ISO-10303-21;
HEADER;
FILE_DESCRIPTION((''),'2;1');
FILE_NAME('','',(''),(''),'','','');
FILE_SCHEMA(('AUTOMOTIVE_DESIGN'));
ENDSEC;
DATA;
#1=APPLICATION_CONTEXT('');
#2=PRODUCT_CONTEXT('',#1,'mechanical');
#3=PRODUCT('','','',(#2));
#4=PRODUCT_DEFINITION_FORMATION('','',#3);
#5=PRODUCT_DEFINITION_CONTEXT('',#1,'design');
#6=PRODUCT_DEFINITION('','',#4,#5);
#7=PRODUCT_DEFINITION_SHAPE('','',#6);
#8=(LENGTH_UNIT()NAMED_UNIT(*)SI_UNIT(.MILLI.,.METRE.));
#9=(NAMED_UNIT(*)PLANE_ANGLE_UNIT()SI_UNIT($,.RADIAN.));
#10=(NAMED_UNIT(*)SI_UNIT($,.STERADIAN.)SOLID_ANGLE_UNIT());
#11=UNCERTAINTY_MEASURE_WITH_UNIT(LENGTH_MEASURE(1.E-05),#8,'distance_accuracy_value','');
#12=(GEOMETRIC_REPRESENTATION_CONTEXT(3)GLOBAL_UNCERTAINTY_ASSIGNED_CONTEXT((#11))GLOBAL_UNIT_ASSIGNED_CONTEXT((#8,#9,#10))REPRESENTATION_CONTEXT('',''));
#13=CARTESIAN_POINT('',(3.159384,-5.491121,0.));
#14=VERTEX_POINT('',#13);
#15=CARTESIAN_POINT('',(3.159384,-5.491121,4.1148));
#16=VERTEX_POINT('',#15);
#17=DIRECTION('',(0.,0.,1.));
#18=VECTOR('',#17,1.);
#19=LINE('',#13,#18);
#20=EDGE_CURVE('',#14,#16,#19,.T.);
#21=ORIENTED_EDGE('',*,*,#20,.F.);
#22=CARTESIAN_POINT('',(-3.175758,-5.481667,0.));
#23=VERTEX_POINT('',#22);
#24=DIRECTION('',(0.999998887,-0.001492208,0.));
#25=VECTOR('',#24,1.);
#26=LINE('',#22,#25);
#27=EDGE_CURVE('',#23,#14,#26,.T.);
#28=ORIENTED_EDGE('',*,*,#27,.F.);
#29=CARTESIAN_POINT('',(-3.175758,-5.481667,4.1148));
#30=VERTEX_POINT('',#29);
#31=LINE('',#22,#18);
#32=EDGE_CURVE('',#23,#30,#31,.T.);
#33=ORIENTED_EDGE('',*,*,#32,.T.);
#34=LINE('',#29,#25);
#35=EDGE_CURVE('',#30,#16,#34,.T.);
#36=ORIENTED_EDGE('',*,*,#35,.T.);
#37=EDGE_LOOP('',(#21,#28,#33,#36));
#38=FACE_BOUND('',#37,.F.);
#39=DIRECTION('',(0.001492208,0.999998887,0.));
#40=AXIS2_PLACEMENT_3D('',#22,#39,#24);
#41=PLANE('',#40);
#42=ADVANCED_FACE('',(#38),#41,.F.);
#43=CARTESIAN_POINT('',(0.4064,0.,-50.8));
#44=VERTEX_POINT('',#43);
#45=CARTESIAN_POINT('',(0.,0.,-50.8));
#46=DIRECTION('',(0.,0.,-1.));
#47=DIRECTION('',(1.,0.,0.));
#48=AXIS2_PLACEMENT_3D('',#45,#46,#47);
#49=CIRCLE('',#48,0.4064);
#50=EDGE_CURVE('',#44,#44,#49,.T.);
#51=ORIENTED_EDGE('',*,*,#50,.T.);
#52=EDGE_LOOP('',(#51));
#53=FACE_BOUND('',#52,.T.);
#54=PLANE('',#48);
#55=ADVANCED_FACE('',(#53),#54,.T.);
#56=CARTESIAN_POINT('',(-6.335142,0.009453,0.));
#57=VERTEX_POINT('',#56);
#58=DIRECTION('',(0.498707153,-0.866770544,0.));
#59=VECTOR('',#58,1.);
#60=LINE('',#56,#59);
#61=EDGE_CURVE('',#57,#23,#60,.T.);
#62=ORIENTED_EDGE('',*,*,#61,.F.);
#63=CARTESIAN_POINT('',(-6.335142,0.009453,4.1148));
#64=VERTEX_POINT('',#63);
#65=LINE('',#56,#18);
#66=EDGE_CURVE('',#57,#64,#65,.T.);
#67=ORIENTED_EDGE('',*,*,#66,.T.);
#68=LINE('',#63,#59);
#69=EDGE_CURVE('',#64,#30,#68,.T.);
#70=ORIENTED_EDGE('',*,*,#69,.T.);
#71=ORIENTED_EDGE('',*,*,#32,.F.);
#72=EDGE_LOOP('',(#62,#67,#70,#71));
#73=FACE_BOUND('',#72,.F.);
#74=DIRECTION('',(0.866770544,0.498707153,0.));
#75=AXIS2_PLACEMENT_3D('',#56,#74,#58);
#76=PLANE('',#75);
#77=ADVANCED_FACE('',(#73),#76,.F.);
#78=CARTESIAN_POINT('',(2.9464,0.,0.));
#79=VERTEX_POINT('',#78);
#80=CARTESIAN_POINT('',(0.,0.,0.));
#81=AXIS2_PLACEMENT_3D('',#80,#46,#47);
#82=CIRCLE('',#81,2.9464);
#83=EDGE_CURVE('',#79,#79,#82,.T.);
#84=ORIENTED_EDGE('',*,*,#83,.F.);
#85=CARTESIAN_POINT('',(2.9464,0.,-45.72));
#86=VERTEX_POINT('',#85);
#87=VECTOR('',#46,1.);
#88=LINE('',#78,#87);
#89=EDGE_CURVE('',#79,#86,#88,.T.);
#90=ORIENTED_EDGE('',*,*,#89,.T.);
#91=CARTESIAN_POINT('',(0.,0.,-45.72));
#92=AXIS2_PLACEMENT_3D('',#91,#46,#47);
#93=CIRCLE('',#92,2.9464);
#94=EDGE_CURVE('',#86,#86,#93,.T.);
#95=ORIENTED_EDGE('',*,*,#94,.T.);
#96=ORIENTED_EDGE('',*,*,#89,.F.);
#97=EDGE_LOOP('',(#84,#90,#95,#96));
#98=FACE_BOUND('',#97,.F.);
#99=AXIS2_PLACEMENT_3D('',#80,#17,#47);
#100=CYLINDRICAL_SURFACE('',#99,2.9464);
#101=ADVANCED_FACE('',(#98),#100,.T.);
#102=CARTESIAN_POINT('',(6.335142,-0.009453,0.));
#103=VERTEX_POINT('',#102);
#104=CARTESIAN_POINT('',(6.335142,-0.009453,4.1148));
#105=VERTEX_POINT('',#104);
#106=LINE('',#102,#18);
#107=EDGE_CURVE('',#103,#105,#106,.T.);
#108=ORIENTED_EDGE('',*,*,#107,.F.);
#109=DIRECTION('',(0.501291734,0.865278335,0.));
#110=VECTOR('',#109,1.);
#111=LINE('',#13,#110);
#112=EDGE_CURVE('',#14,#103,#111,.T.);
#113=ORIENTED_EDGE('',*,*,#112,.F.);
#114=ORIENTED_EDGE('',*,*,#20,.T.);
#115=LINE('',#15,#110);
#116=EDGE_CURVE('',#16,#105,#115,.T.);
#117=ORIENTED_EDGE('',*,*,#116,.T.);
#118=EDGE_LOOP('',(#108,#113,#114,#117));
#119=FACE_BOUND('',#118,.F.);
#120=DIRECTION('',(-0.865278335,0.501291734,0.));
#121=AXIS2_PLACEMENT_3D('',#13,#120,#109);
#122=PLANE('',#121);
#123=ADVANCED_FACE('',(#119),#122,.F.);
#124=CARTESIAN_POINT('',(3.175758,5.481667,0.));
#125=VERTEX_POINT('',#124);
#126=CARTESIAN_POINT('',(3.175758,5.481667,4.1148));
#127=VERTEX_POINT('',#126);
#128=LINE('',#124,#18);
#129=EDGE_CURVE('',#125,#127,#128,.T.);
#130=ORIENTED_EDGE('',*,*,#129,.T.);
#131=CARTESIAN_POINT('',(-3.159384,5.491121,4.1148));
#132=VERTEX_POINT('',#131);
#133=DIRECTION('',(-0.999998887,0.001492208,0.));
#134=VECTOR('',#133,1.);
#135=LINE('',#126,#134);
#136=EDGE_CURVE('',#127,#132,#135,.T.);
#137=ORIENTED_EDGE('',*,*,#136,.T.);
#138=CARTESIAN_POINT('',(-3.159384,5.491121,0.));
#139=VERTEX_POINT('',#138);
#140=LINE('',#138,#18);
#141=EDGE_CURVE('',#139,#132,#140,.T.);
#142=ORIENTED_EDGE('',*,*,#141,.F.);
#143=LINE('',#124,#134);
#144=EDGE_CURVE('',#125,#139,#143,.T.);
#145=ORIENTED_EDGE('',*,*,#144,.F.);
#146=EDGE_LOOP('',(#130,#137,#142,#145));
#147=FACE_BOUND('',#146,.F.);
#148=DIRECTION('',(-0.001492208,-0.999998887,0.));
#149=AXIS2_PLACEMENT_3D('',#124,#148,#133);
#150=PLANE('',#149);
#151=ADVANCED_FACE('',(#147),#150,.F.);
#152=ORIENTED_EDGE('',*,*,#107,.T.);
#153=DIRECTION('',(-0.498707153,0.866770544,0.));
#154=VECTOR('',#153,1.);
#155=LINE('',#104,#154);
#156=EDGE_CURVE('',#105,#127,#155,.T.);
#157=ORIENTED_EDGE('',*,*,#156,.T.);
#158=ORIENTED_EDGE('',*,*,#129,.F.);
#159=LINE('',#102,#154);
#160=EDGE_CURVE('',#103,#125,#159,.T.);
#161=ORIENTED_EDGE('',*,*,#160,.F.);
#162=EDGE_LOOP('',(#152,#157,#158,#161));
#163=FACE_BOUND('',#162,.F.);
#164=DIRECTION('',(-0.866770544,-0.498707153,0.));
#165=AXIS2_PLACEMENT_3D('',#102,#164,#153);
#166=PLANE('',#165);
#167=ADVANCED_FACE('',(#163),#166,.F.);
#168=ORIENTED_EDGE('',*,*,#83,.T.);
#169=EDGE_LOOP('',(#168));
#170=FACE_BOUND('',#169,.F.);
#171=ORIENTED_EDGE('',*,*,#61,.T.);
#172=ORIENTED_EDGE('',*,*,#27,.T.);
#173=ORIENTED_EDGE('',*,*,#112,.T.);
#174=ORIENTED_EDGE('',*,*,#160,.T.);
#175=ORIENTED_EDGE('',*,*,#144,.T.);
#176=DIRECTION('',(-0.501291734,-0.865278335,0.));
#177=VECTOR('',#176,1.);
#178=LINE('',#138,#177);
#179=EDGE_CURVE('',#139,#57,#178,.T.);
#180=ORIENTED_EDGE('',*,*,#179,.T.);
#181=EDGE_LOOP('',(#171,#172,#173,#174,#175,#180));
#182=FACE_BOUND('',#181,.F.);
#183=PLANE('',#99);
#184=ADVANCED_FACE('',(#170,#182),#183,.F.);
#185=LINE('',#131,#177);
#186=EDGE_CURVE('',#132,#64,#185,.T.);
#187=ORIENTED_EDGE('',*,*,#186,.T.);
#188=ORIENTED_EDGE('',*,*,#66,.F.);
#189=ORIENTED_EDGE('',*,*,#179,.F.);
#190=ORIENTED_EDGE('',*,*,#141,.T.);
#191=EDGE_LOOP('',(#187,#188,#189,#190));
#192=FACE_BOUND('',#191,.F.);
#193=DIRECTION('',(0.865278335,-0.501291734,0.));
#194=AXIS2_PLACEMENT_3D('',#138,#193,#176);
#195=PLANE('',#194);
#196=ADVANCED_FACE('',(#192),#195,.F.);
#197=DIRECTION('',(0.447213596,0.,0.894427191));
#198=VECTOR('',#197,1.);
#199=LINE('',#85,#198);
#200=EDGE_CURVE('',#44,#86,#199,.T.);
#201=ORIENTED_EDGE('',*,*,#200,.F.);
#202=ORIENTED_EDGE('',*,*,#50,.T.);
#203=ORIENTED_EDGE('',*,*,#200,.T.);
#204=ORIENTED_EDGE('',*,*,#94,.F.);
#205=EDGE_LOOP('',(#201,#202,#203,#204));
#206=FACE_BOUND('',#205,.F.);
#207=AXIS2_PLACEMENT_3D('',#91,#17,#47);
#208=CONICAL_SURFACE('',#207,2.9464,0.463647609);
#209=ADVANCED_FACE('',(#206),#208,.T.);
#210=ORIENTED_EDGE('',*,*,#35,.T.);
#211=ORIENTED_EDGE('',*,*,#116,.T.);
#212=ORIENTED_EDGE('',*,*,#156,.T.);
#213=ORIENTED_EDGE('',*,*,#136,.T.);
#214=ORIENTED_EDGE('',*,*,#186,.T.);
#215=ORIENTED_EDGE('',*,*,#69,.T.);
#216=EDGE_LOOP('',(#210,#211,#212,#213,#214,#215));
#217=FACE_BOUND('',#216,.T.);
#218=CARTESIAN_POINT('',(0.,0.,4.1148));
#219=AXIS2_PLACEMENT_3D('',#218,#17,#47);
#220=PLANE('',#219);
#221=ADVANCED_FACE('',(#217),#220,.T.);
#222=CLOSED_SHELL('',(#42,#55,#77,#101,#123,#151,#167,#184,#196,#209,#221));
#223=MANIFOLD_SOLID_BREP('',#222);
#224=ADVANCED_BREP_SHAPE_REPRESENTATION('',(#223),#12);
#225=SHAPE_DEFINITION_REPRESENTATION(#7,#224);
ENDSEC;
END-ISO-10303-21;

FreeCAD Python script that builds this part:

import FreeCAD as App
import Part
import Sketcher

V = App.Vector
Q = App.Units.Quantity


def edges_at(feature, points):
    """Names of the edges that pass closest to the given points."""
    edges = feature.Shape.Edges
    near = lambda p: min(range(len(edges)), key=lambda i: edges[i].distToShape(Part.Vertex(*p))[0])
    return sorted({f"Edge{near(p) + 1}" for p in points})

doc = App.newDocument("Part")
body = doc.addObject("PartDesign::Body", "Body")

sketch1 = body.newObject("Sketcher::SketchObject", "Sketch")
sketch1.AttachmentSupport = (doc.getObject("XY_Plane"), [""])
sketch1.MapMode = "FlatFace"
sketch1.addGeometry(Part.LineSegment(V(3.159384, -5.491121, 0), V(6.335142, -0.009453, 0)), False)
sketch1.addGeometry(Part.LineSegment(V(6.335142, -0.009453, 0), V(3.175758, 5.481667, 0)), False)
sketch1.addGeometry(Part.LineSegment(V(3.175758, 5.481667, 0), V(-3.159384, 5.491121, 0)), False)
sketch1.addGeometry(Part.LineSegment(V(-3.159384, 5.491121, 0), V(-6.335142, 0.009453, 0)), False)
sketch1.addGeometry(Part.LineSegment(V(-6.335142, 0.009453, 0), V(-3.175758, -5.481667, 0)), False)
sketch1.addGeometry(Part.LineSegment(V(-3.175758, -5.481667, 0), V(3.159384, -5.491121, 0)), False)
sketch1.addConstraint(Sketcher.Constraint("Coincident", 0, 2, 1, 1))
sketch1.addConstraint(Sketcher.Constraint("Coincident", 1, 2, 2, 1))
sketch1.addConstraint(Sketcher.Constraint("Coincident", 2, 2, 3, 1))
sketch1.addConstraint(Sketcher.Constraint("Coincident", 3, 2, 4, 1))
sketch1.addConstraint(Sketcher.Constraint("Coincident", 4, 2, 5, 1))
sketch1.addConstraint(Sketcher.Constraint("Coincident", 5, 2, 0, 1))
sketch1.addConstraint(Sketcher.Constraint("Symmetric", 0, 2, 3, 2, -1, 1))
sketch1.addConstraint(Sketcher.Constraint("Symmetric", 1, 2, 4, 2, -1, 1))
sketch1.addConstraint(Sketcher.Constraint("Symmetric", 2, 2, 5, 2, -1, 1))
sketch1.addConstraint(Sketcher.Constraint("Equal", 0, 1))
sketch1.addConstraint(Sketcher.Constraint("Equal", 1, 2))
sketch1.addConstraint(Sketcher.Constraint("DistanceX", 3, 2, 1, 2, Q("9.5109 mm")))
sketch1.addConstraint(Sketcher.Constraint("Distance", 0, Q("6.335149 mm")))
sketch1.addConstraint(Sketcher.Constraint("DistanceX", -1, 1, 0, 2, Q("6.335142 mm")))
sketch1.addConstraint(Sketcher.Constraint("DistanceY", -1, 1, 2, 2, Q("5.491121 mm")))
pad1 = body.newObject("PartDesign::Pad", "Pad")
pad1.Profile = sketch1
pad1.Length = Q("0.162 in")

sketch2 = body.newObject("Sketcher::SketchObject", "Sketch001")
sketch2.AttachmentSupport = (doc.getObject("XY_Plane"), [""])
sketch2.MapMode = "FlatFace"
sketch2.addGeometry(Part.Circle(V(0, 0, 0), V(0, 0, 1), 2.9464), False)
sketch2.addConstraint(Sketcher.Constraint("Coincident", 0, 3, -1, 1))
sketch2.addConstraint(Sketcher.Constraint("Diameter", 0, Q("0.232 in")))
pad2 = body.newObject("PartDesign::Pad", "Pad001")
pad2.Profile = sketch2
pad2.Length = Q("2 in")
pad2.Reversed = True
doc.recompute()

chamfer = body.newObject("PartDesign::Chamfer", "Chamfer")
chamfer.Base = (pad2, edges_at(pad2, [(-2.946, 0, -50.8)]))
chamfer.ChamferType = "Two distances"
chamfer.Size = Q("0.1 in")
chamfer.Size2 = Q("0.2 in")
chamfer.FlipDirection = True

doc.recompute()
